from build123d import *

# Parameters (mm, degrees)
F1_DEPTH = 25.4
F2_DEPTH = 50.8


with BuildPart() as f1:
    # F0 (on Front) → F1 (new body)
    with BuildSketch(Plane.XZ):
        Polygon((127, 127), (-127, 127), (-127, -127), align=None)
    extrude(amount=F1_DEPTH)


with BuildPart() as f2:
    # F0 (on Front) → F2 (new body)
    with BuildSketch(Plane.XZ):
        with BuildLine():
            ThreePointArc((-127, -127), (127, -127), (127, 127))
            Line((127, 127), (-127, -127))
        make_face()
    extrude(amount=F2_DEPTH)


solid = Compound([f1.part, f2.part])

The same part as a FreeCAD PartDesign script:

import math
import FreeCAD as App
import Part
import Sketcher
from FreeCAD import Vector
Q = App.Units.Quantity

doc = App.newDocument("Part")
body = doc.addObject("PartDesign::Body", "Body")

# Sketch on XZ plane
sketch1 = body.newObject("Sketcher::SketchObject", "Sketch")
sketch1.AttachmentSupport = (doc.getObject("XZ_Plane"), [""])
sketch1.MapMode = "FlatFace"
sketch1.addGeometry([
    Part.LineSegment(Vector(127, 127, 0), Vector(-127, 127, 0)),
    Part.LineSegment(Vector(-127, 127, 0), Vector(-127, -127, 0)),
    Part.LineSegment(Vector(-127, -127, 0), Vector(127, 127, 0)),
], False)
sketch1.addConstraint([
    Sketcher.Constraint("Coincident", 0, 2, 1, 1),
    Sketcher.Constraint("Coincident", 1, 2, 2, 1),
    Sketcher.Constraint("Coincident", 2, 2, 0, 1),
    Sketcher.Constraint("Horizontal", 0),
    Sketcher.Constraint("Vertical", 1),
    Sketcher.Constraint("Symmetric", 1, 2, 2, 2, -1, 1),
    Sketcher.Constraint("Equal", 0, 1),
    Sketcher.Constraint("DistanceX", 0, 2, 0, 1, Q("10 in")),
])
pad1 = body.newObject("PartDesign::Pad", "Pad")
pad1.Profile = sketch1
pad1.Length = Q("1 in")
body2 = doc.addObject("PartDesign::Body", "Body001")

# Sketch on XZ plane
sketch2 = body2.newObject("Sketcher::SketchObject", "Sketch001")
sketch2.AttachmentSupport = (doc.getObject("XZ_Plane001"), [""])
sketch2.MapMode = "FlatFace"
sketch2.addGeometry([
    Part.ArcOfCircle(Part.Circle(Vector(0, 0, 0), Vector(0, 0, 1), 179.605122), math.radians(-135), math.radians(45)),
    Part.LineSegment(Vector(127, 127, 0), Vector(-127, -127, 0)),
], False)
sketch2.addConstraint([
    Sketcher.Constraint("Coincident", 0, 1, 1, 2),
    Sketcher.Constraint("Coincident", 1, 1, 0, 2),
    Sketcher.Constraint("Coincident", 0, 3, -1, 1),
    Sketcher.Constraint("DistanceX", 0, 1, -1, 1, Q("5 in")),
    Sketcher.Constraint("DistanceY", 0, 1, -1, 1, Q("5 in")),
    Sketcher.Constraint("DistanceX", -1, 1, 1, 1, Q("5 in")),
])
pad2 = body2.newObject("PartDesign::Pad", "Pad001")
pad2.Profile = sketch2
pad2.Length = Q("2 in")

doc.recompute()
